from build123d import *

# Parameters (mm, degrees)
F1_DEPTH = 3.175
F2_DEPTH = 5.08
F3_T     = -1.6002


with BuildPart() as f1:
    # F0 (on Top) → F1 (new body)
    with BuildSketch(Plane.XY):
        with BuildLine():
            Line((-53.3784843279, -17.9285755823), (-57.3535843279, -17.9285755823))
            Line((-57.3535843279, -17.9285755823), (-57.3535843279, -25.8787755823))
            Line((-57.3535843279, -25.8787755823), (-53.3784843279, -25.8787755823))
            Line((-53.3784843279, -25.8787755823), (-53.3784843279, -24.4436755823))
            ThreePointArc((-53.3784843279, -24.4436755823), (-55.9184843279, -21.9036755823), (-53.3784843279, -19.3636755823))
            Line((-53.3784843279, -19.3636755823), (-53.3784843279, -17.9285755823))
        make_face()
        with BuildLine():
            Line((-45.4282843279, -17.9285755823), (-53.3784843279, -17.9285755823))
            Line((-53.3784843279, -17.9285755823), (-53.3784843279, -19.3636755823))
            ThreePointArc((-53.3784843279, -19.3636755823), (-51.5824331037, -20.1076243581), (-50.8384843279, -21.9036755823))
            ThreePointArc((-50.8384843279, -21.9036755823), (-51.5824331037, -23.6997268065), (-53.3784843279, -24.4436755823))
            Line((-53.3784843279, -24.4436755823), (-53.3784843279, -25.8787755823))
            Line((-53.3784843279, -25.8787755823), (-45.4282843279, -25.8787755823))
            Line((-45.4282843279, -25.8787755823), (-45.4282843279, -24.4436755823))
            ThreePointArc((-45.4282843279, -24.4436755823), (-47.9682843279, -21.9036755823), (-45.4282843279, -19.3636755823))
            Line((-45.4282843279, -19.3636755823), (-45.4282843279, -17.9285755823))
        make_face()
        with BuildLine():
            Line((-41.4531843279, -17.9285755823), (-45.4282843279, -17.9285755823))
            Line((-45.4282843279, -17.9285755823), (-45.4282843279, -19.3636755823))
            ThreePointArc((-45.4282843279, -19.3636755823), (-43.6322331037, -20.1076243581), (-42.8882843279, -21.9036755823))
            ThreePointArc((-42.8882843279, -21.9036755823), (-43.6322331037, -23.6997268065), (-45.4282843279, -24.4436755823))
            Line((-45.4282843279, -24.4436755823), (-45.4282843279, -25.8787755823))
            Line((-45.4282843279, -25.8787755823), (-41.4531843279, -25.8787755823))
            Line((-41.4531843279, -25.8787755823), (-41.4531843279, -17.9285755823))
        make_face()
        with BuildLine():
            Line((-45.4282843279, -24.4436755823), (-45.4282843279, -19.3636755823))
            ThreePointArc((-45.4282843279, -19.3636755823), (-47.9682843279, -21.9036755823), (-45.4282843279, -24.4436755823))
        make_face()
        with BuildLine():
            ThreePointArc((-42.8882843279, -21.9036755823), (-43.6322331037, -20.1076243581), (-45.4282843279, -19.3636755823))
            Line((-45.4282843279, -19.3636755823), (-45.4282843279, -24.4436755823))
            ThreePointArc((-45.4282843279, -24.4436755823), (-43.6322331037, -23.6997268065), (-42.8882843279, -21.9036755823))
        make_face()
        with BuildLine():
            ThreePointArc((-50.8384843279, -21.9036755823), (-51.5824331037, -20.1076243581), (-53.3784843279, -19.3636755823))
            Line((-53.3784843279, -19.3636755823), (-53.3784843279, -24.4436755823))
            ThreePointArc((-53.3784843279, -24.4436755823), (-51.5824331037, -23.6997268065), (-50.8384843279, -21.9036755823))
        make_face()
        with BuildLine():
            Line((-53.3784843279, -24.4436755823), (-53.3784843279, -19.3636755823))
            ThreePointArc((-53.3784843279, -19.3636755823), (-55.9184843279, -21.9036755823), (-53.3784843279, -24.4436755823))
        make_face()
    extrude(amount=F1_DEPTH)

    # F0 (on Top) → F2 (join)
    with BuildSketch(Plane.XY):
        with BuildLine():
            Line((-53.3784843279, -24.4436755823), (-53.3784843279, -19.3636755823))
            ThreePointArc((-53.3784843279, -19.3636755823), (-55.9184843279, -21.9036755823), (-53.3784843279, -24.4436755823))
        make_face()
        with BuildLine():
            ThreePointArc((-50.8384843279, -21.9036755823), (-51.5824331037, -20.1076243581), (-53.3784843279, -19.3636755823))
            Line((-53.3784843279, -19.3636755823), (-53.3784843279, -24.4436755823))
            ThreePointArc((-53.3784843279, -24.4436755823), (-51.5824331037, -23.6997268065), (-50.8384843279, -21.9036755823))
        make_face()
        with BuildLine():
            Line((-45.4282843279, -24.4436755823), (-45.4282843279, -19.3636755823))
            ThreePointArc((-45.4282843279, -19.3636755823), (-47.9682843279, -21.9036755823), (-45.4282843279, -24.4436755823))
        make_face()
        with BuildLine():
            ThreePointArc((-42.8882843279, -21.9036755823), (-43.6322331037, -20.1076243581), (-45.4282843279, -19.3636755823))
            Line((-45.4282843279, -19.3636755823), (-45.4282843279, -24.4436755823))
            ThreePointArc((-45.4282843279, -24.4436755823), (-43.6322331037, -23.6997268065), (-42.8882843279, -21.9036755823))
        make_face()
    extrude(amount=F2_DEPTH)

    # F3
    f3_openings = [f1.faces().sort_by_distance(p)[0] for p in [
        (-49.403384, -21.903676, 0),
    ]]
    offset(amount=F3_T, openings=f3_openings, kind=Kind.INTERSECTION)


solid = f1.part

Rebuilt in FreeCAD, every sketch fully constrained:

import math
import FreeCAD as App
import Part
import Sketcher
from FreeCAD import Vector
Q = App.Units.Quantity


def faces_at(feature, points):
    """Names of the faces that lie closest to the given points."""
    faces = feature.Shape.Faces
    near = lambda p: min(range(len(faces)), key=lambda i: faces[i].distToShape(Part.Vertex(*p))[0])
    return sorted({f"Face{near(p) + 1}" for p in points})


def add_polygon(sketch, points):
    """Adds a closed chain of lines whose ends are joined by coincident constraints."""
    first, n = sketch.GeometryCount, len(points)
    for a, b in zip(points, points[1:] + points[:1]):
        sketch.addGeometry(Part.LineSegment(App.Vector(*a, 0), App.Vector(*b, 0)), False)
    for i in range(n):
        sketch.addConstraint(Sketcher.Constraint("Coincident", first + i, 2, first + (i + 1) % n, 1))

doc = App.newDocument("Part")
body = doc.addObject("PartDesign::Body", "Body")

sketch1 = body.newObject("Sketcher::SketchObject", "Sketch")
sketch1.AttachmentSupport = (doc.getObject("XY_Plane"), [""])
sketch1.MapMode = "FlatFace"
add_polygon(sketch1, [(-57, -18), (-57, -26), (-41, -26), (-41, -18)])
sketch1.addConstraint([
    Sketcher.Constraint("Vertical", 0),
    Sketcher.Constraint("Horizontal", 1),
    Sketcher.Constraint("Vertical", 2),
    Sketcher.Constraint("Horizontal", 3),
    Sketcher.Constraint("DistanceX", 1, 1, 1, 2, Q("0.626 in")),
    Sketcher.Constraint("DistanceY", 0, 2, 0, 1, Q("0.313 in")),
    Sketcher.Constraint("DistanceX", 0, 2, -1, 1, Q("57.353584 mm")),
    Sketcher.Constraint("DistanceY", 0, 2, -1, 1, Q("25.878776 mm")),
])
pad1 = body.newObject("PartDesign::Pad", "Pad")
pad1.Profile = sketch1
pad1.Length = Q("0.125 in")

sketch2 = body.newObject("Sketcher::SketchObject", "Sketch001")
sketch2.AttachmentSupport = (doc.getObject("XY_Plane"), [""])
sketch2.MapMode = "FlatFace"
sketch2.addGeometry([
    Part.ArcOfCircle(Part.Circle(Vector(-53.4, -21.9, 0), Vector(0, 0, 1), 2.5), math.radians(90), math.radians(270)),
    Part.ArcOfCircle(Part.Circle(Vector(-53.4, -21.9, 0), Vector(0, 0, 1), 2.5), math.radians(-90), math.radians(0)),
    Part.ArcOfCircle(Part.Circle(Vector(-53.4, -21.9, 0), Vector(0, 0, 1), 2.5), math.radians(0), math.radians(90)),
    Part.ArcOfCircle(Part.Circle(Vector(-45.4, -21.9, 0), Vector(0, 0, 1), 2.5), math.radians(90), math.radians(270)),
    Part.ArcOfCircle(Part.Circle(Vector(-45.4, -21.9, 0), Vector(0, 0, 1), 2.5), math.radians(-90), math.radians(0)),
    Part.ArcOfCircle(Part.Circle(Vector(-45.4, -21.9, 0), Vector(0, 0, 1), 2.5), math.radians(0), math.radians(90)),
], False)
sketch2.addConstraint([
    Sketcher.Constraint("Tangent", 0, 2, 1, 1),
    Sketcher.Constraint("Tangent", 1, 2, 2, 1),
    Sketcher.Constraint("Tangent", 2, 2, 0, 1),
    Sketcher.Constraint("Tangent", 3, 2, 4, 1),
    Sketcher.Constraint("Tangent", 4, 2, 5, 1),
    Sketcher.Constraint("Tangent", 5, 2, 3, 1),
    Sketcher.Constraint("Equal", 2, 3),
    Sketcher.Constraint("Horizontal", 2, 3, 3, 3),
    Sketcher.Constraint("Horizontal", 5, 3, 1, 2),
    Sketcher.Constraint("Horizontal", 1, 2, 4, 2),
    Sketcher.Constraint("Vertical", 2, 3, 0, 2),
    Sketcher.Constraint("Vertical", 0, 2, 2, 2),
    Sketcher.Constraint("Vertical", 5, 3, 3, 2),
    Sketcher.Constraint("Vertical", 3, 2, 5, 2),
    Sketcher.Constraint("Radius", 0, Q("0.1 in")),
    Sketcher.Constraint("DistanceX", 0, 3, 3, 3, Q("0.313 in")),
    Sketcher.Constraint("DistanceX", 0, 3, -1, 1, Q("53.378484 mm")),
    Sketcher.Constraint("DistanceY", 0, 3, -1, 1, Q("21.903676 mm")),
])
pad2 = body.newObject("PartDesign::Pad", "Pad001")
pad2.Profile = sketch2
pad2.Length = Q("0.2 in")
doc.recompute()

thickness = body.newObject("PartDesign::Thickness", "Thickness")
thickness.Base = (pad2, faces_at(pad2, [(-49.403, -21.904, 0)]))
thickness.Value = Q("0.063 in")
thickness.Reversed = True
thickness.Join = "Intersection"

doc.recompute()
